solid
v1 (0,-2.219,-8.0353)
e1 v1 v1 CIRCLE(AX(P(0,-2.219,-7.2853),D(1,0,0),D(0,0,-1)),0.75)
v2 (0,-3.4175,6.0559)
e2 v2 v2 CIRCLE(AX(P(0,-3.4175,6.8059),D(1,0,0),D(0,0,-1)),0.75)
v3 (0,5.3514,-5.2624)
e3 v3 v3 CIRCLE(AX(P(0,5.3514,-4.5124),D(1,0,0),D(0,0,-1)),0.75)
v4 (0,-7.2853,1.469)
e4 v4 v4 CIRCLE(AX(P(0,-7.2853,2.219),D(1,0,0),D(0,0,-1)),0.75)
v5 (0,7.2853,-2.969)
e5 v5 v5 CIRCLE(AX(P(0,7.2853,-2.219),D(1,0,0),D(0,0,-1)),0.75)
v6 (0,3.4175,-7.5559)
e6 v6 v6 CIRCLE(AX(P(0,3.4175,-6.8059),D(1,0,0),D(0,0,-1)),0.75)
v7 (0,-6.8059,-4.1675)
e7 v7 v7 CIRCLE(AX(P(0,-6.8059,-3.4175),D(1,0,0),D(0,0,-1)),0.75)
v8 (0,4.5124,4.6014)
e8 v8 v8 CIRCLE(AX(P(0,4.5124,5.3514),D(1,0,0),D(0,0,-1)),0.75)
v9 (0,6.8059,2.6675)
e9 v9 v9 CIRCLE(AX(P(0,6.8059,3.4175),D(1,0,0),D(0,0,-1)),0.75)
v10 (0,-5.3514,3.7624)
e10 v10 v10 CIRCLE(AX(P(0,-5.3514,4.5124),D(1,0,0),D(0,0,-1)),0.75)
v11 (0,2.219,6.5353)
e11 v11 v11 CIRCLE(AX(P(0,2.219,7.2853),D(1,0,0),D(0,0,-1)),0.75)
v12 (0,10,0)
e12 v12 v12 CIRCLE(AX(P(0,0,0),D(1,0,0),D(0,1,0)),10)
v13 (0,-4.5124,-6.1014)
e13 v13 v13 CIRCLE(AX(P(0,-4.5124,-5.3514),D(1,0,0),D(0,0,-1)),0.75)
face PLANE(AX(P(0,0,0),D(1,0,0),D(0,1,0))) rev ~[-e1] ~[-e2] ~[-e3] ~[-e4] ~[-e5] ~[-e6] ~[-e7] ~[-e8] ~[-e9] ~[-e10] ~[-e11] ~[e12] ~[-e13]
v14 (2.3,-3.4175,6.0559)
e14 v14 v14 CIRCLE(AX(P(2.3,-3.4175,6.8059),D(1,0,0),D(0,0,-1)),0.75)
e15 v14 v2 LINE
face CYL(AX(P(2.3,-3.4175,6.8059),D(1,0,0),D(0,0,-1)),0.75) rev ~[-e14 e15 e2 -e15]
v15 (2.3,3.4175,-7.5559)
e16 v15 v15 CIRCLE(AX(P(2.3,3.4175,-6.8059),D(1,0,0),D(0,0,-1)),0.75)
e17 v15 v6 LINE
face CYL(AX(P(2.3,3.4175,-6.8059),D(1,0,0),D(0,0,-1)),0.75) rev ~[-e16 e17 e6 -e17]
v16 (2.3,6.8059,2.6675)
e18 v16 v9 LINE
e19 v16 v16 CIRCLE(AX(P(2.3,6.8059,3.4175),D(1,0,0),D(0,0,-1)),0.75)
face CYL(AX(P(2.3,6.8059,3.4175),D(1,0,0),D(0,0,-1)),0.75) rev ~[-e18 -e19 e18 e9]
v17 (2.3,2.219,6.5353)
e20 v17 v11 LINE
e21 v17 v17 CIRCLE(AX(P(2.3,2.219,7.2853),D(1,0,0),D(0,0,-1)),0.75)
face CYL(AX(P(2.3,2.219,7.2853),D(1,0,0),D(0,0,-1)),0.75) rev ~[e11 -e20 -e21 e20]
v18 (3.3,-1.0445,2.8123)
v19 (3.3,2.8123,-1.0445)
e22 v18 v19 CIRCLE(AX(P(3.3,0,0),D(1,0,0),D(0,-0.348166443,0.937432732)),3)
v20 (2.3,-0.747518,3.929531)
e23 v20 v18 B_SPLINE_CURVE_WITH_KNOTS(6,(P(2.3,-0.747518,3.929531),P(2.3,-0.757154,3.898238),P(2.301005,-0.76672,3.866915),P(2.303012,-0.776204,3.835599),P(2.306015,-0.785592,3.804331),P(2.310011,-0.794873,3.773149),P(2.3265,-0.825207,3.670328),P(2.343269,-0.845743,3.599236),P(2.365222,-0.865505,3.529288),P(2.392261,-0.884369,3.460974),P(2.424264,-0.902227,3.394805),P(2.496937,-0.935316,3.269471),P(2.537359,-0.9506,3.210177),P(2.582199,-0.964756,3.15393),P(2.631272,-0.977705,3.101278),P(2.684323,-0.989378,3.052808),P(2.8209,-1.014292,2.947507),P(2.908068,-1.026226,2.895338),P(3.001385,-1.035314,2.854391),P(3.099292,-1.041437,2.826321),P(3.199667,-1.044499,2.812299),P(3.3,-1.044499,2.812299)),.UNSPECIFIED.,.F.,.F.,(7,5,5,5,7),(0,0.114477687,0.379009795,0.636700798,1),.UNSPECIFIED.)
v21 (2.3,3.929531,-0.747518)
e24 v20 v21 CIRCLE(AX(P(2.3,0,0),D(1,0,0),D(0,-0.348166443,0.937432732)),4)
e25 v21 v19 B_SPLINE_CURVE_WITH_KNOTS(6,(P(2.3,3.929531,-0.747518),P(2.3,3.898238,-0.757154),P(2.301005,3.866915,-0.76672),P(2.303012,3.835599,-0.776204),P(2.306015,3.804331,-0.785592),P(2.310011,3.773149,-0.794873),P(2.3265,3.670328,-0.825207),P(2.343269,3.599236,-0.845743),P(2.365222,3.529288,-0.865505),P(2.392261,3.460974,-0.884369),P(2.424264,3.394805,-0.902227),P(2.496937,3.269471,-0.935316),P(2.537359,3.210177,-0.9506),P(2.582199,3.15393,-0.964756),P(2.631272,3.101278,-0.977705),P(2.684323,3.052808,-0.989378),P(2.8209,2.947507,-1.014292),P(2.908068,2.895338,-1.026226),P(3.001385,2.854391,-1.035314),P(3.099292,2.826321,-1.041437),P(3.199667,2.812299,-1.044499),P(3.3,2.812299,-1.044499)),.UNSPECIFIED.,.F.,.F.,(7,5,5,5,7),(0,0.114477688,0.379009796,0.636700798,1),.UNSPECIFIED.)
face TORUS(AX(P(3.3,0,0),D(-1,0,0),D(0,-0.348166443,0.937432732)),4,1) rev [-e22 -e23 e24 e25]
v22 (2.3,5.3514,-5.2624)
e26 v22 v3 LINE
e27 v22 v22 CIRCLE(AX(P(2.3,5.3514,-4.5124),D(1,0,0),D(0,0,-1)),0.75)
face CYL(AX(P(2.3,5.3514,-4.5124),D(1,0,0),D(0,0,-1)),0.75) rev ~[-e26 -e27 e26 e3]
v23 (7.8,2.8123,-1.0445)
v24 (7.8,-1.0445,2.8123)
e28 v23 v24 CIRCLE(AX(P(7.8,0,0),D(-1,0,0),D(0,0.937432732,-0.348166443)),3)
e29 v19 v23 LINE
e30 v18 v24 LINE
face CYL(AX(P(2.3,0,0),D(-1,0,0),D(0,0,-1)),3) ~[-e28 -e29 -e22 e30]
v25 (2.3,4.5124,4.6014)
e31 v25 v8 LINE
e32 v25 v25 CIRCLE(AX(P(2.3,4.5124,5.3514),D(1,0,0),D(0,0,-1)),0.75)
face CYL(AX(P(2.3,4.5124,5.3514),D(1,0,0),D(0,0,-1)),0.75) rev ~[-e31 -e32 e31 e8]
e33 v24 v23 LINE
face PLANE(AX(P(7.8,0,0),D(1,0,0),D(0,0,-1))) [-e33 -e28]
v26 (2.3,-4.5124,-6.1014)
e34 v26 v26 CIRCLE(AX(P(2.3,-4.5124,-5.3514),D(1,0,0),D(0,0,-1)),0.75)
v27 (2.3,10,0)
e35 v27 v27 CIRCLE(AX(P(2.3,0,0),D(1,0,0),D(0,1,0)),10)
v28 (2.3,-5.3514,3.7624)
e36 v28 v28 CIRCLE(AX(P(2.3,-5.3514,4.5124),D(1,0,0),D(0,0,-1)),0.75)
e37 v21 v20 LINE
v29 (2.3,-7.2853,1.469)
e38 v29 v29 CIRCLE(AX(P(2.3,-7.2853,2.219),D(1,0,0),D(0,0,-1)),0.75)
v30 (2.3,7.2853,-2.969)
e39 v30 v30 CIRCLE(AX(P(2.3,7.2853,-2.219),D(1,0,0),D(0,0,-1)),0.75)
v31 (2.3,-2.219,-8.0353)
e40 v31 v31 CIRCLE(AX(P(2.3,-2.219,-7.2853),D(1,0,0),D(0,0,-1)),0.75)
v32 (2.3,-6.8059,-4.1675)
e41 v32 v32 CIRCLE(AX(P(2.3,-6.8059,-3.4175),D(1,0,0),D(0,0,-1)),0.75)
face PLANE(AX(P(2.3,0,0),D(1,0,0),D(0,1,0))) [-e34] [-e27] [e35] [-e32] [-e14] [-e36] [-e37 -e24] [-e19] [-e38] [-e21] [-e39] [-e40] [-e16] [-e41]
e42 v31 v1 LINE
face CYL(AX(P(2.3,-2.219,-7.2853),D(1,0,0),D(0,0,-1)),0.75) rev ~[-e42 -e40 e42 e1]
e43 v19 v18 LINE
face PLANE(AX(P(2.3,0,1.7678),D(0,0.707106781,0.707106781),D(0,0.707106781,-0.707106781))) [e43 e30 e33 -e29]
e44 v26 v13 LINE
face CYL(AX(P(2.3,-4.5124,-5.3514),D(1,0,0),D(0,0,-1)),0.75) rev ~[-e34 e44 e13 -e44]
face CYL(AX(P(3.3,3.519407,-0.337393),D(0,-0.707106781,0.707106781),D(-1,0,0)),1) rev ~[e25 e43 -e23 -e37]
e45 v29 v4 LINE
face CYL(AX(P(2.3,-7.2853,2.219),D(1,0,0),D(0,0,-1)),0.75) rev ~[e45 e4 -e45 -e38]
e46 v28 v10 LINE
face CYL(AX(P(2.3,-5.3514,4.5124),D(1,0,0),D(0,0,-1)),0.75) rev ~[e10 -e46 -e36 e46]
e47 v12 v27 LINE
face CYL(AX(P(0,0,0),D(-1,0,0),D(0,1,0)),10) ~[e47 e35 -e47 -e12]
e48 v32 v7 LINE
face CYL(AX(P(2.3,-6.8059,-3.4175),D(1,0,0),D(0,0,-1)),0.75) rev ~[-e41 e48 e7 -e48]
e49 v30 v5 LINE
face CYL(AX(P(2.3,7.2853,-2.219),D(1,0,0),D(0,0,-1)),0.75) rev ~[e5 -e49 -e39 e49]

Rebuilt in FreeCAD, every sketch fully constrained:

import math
import FreeCAD as App
import Part
import Sketcher
from FreeCAD import Vector
Q = App.Units.Quantity


def edges_at(feature, points):
    """Names of the edges that pass closest to the given points."""
    edges = feature.Shape.Edges
    near = lambda p: min(range(len(edges)), key=lambda i: edges[i].distToShape(Part.Vertex(*p))[0])
    return sorted({f"Edge{near(p) + 1}" for p in points})

doc = App.newDocument("Part")
body = doc.addObject("PartDesign::Body", "Body")

# Sketch on YZ plane
sketch1 = body.newObject("Sketcher::SketchObject", "Sketch")
sketch1.AttachmentSupport = (doc.getObject("YZ_Plane"), [""])
sketch1.MapMode = "FlatFace"
sketch1.addGeometry(Part.Circle(Vector(0, 0, 0), Vector(0, 0, 1), 10), False)
sketch1.addConstraint([
    Sketcher.Constraint("Coincident", 0, 3, -1, 1),
    Sketcher.Constraint("Diameter", 0, 20.0),
])
pad1 = body.newObject("PartDesign::Pad", "Pad")
pad1.Profile = sketch1
pad1.Length = 2.3

# Sketch on YZ plane
sketch2 = body.newObject("Sketcher::SketchObject", "Sketch001")
sketch2.AttachmentSupport = (doc.getObject("YZ_Plane"), [""])
sketch2.MapMode = "FlatFace"
sketch2.AttachmentOffset = App.Placement(Vector(0, 0, 2.3), App.Rotation())
sketch2.addGeometry([
    Part.Circle(Vector(4.5, 5.4, 0), Vector(0, 0, 1), 0.8),  # 0
    Part.Circle(Vector(2.2, 7.3, 0), Vector(0, 0, 1), 0.8),  # 1
    Part.Circle(Vector(-5.4, 4.5, 0), Vector(0, 0, 1), 0.8),  # 2
    Part.Circle(Vector(-7.3, 2.2, 0), Vector(0, 0, 1), 0.8),  # 3
    Part.Circle(Vector(-6.8, -3.4, 0), Vector(0, 0, 1), 0.8),  # 4
    Part.Circle(Vector(5.4, -4.5, 0), Vector(0, 0, 1), 0.8),  # 5
    Part.Circle(Vector(7.3, -2.2, 0), Vector(0, 0, 1), 0.8),  # 6
    Part.Circle(Vector(3.4, -6.8, 0), Vector(0, 0, 1), 0.8),  # 7
    Part.Circle(Vector(-2.2, -7.3, 0), Vector(0, 0, 1), 0.8),  # 8
    Part.Circle(Vector(-4.5, -5.4, 0), Vector(0, 0, 1), 0.8),  # 9
    Part.Circle(Vector(-3.4, 6.8, 0), Vector(0, 0, 1), 0.8),  # 10
    Part.Circle(Vector(6.8, 3.4, 0), Vector(0, 0, 1), 0.8),  # 11
], False)
sketch2.addConstraint([
    Sketcher.Constraint("Equal", 0, 1),
    Sketcher.Constraint("Equal", 1, 2),
    Sketcher.Constraint("Equal", 2, 3),
    Sketcher.Constraint("Equal", 3, 4),
    Sketcher.Constraint("Equal", 4, 5),
    Sketcher.Constraint("Equal", 5, 6),
    Sketcher.Constraint("Equal", 6, 7),
    Sketcher.Constraint("Equal", 7, 8),
    Sketcher.Constraint("Equal", 8, 9),
    Sketcher.Constraint("Equal", 9, 10),
    Sketcher.Constraint("Equal", 10, 11),
    Sketcher.Constraint("Symmetric", 2, 3, 5, 3, -1, 1),
    Sketcher.Constraint("Symmetric", 3, 3, 6, 3, -1, 1),
    Sketcher.Constraint("Symmetric", 1, 3, 8, 3, -1, 1),
    Sketcher.Constraint("Symmetric", 0, 3, 9, 3, -1, 1),
    Sketcher.Constraint("Symmetric", 7, 3, 10, 3, -1, 1),
    Sketcher.Constraint("Symmetric", 4, 3, 11, 3, -1, 1),
    Sketcher.Constraint("Diameter", 0, 1.5),
    Sketcher.Constraint("DistanceY", 4, 3, 2, 3, 7.93),
    Sketcher.Constraint("DistanceX", 9, 3, 7, 3, 7.93),
    Sketcher.Constraint("DistanceX", -1, 1, 1, 3, 2.219),
    Sketcher.Constraint("DistanceY", -1, 1, 3, 3, 2.219),
    Sketcher.Constraint("DistanceX", 4, 3, -1, 1, 6.806),
    Sketcher.Constraint("DistanceY", 7, 3, -1, 1, 6.806),
    Sketcher.Constraint("DistanceY", 0, 3, 1, 3, 1.934),
    Sketcher.Constraint("DistanceY", 2, 3, 1, 3, 2.773),
    Sketcher.Constraint("DistanceX", 3, 3, 2, 3, 1.934),
    Sketcher.Constraint("DistanceX", 0, 3, 5, 3, 0.839),
    Sketcher.Constraint("DistanceY", 5, 3, 4, 3, 1.095),
    Sketcher.Constraint("DistanceX", 7, 3, 5, 3, 1.934),
])
pocket1 = body.newObject("PartDesign::Pocket", "Pocket")
pocket1.Profile = sketch2
pocket1.Type = "ThroughAll"

# Sketch on YZ plane
sketch3 = body.newObject("Sketcher::SketchObject", "Sketch002")
sketch3.AttachmentSupport = (doc.getObject("YZ_Plane"), [""])
sketch3.MapMode = "FlatFace"
sketch3.AttachmentOffset = App.Placement(Vector(0, 0, 2.3), App.Rotation())
sketch3.addGeometry([
    Part.LineSegment(Vector(2.8, -1, 0), Vector(-1, 2.8, 0)),
    Part.ArcOfCircle(Part.Circle(Vector(0, 0, 0), Vector(0, 0, 1), 3), math.radians(110), math.radians(340)),
], False)
sketch3.addConstraint([
    Sketcher.Constraint("Coincident", 0, 1, 1, 2),
    Sketcher.Constraint("Coincident", 1, 1, 0, 2),
    Sketcher.Constraint("Coincident", 1, 3, -1, 1),
    Sketcher.Constraint("Radius", 1, 3.0),
    Sketcher.Constraint("Angle", 0, Q("135 deg")),
    Sketcher.Constraint("Distance", 0, 5.4543),
])
pad2 = body.newObject("PartDesign::Pad", "Pad001")
pad2.Profile = sketch3
pad2.Length = 5.5
doc.recompute()

fillet = body.newObject("PartDesign::Fillet", "Fillet")
fillet.Base = (pad2, edges_at(pad2, [(2.3, 0.884, 0.884), (2.3, -2.121, -2.121)]))
fillet.Radius = 1

doc.recompute()
